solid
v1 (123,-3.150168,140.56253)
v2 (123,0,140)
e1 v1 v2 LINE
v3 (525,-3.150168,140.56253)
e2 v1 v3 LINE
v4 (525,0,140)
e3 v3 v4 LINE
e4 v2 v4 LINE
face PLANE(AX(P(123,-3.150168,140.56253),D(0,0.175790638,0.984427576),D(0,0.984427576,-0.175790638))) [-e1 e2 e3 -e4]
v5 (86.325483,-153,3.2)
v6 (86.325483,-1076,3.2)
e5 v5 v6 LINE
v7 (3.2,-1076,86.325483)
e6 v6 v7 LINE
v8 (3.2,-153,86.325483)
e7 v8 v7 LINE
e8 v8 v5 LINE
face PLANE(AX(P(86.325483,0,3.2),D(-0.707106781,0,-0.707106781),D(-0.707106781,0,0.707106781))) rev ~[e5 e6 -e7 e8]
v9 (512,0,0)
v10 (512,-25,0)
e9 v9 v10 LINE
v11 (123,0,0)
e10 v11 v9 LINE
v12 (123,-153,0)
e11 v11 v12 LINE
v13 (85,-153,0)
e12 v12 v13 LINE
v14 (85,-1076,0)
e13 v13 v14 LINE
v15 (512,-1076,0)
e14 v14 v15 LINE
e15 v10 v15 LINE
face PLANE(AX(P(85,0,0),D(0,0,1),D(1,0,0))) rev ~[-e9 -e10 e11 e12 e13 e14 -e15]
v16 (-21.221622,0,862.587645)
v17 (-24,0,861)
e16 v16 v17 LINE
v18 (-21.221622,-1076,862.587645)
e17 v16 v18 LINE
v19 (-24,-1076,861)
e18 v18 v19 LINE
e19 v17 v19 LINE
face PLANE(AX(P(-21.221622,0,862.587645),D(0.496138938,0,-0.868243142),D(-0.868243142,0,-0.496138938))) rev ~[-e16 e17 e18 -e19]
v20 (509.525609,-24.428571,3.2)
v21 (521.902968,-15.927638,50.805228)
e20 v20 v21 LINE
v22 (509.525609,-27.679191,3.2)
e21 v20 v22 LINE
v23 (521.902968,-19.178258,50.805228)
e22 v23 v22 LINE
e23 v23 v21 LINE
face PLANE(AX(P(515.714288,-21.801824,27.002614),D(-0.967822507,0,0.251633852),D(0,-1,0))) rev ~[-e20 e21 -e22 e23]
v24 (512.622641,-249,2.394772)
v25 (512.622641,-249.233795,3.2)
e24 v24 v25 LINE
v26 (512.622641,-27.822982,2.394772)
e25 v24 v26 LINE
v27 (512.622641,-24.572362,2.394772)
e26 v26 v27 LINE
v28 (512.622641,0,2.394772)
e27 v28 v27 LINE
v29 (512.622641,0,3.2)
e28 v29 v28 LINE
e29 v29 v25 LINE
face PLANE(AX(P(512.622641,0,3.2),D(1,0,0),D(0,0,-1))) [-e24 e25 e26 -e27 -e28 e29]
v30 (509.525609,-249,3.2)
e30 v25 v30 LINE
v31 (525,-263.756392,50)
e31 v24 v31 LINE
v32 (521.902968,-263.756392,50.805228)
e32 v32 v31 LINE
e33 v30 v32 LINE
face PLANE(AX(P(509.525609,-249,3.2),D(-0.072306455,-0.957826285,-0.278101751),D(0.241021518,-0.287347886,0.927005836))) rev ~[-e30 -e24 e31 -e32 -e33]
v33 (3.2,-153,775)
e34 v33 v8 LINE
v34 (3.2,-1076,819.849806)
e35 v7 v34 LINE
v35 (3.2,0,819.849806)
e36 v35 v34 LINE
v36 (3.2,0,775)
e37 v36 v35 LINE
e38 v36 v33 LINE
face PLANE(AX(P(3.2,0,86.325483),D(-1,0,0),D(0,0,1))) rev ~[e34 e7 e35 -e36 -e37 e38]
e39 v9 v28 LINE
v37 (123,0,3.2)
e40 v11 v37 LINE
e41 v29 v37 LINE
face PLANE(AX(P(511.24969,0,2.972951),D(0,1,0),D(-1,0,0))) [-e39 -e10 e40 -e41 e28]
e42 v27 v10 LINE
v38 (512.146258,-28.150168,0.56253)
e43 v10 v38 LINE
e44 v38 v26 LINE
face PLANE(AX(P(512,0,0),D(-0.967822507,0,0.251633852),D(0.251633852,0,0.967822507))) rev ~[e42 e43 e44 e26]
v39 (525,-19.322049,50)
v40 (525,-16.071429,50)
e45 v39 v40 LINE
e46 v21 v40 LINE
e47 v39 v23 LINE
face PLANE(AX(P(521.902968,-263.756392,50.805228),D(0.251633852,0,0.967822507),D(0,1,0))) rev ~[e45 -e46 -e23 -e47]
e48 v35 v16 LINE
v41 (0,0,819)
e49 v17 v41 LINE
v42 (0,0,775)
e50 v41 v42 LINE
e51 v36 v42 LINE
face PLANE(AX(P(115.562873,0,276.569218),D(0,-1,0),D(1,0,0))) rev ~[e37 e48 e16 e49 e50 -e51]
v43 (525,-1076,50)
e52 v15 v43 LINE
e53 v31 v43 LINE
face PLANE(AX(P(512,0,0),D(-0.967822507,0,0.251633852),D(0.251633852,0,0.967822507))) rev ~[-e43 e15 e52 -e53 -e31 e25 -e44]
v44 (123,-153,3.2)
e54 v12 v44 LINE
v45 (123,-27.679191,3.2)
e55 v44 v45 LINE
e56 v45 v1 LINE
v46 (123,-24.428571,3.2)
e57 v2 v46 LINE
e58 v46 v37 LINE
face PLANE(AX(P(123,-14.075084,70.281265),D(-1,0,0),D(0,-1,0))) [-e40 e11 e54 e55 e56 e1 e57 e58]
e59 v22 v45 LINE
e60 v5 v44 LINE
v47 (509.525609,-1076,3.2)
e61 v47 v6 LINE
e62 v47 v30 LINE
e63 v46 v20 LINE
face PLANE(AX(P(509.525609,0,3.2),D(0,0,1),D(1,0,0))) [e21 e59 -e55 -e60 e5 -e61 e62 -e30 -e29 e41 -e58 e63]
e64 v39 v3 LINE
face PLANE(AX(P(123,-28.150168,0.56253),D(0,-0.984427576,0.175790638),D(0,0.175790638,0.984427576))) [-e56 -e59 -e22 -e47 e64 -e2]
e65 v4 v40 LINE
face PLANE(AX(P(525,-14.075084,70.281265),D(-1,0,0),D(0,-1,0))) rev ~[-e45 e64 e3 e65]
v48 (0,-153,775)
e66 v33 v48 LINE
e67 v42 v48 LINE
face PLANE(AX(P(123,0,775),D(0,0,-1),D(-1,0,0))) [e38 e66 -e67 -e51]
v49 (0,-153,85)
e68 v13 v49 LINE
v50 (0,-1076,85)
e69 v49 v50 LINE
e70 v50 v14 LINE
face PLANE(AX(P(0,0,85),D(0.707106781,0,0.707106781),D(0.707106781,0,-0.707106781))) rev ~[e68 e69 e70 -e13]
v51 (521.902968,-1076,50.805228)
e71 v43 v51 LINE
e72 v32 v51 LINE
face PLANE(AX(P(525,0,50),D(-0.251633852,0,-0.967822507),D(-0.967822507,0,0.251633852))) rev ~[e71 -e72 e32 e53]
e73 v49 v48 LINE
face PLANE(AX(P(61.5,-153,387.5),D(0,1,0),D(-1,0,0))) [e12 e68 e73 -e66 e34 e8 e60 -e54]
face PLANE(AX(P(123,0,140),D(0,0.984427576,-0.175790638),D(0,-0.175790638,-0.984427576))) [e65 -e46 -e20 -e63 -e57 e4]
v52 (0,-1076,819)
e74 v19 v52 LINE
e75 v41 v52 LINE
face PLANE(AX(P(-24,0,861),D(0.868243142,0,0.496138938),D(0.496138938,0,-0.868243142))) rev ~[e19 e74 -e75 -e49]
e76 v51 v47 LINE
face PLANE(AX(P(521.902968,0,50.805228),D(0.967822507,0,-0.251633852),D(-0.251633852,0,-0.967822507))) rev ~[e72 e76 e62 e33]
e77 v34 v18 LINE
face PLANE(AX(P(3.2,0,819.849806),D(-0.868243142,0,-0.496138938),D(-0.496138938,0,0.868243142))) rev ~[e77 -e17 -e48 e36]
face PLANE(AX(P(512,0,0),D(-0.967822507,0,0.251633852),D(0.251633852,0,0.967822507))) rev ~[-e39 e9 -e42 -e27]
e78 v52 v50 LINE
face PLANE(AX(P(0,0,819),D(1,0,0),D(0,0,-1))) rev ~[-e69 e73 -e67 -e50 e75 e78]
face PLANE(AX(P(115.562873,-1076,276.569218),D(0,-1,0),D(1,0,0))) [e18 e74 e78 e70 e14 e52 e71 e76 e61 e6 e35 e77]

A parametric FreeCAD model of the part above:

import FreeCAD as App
import Part
import Sketcher
Q = App.Units.Quantity


def add_polygon(sketch, points):
    """Adds a closed chain of lines whose ends are joined by coincident constraints."""
    first, n = sketch.GeometryCount, len(points)
    for a, b in zip(points, points[1:] + points[:1]):
        sketch.addGeometry(Part.LineSegment(App.Vector(*a, 0), App.Vector(*b, 0)), False)
    for i in range(n):
        sketch.addConstraint(Sketcher.Constraint("Coincident", first + i, 2, first + (i + 1) % n, 1))

doc = App.newDocument("Part")
params = doc.addObject("Spreadsheet::Sheet", "Params")
for row, (alias, value) in enumerate([
    ("sketch1_width", "427 mm"),
    ("sketch1_height", "734 mm"),
    ("sketch1_length", "3.2 mm"),
    ("pad1_length", "1076 mm"),
    ("sketch2_width", "123 mm"),
    ("sketch2_height", "775 mm"),
    ("pocket1_length", "153 mm"),
    ("sketch3_length", "3.2 mm"),
    ("pad2_length", "402 mm"),
    ("sketch4_width", "249 mm"),
    ("pocket2_length", "25 mm"),
    ("pocket3_length", "50 mm"),
    ("sketch6_length", "3.2 mm"),
    ("pad3_length", "260 mm"),
], start=1):
    params.set(f"A{row}", alias)
    params.set(f"B{row}", "=" + value)
    params.setAlias(f"B{row}", alias)

body = doc.addObject("PartDesign::Body", "Body")

sketch1 = body.newObject("Sketcher::SketchObject", "Sketch")
sketch1.AttachmentSupport = (doc.getObject("XZ_Plane"), [""])
sketch1.MapMode = "FlatFace"
add_polygon(sketch1, [(0, 819), (0, 85), (85, 0), (512, 0), (525, 50), (521.902968, 50.805228), (509.525609, 3.2), (86.325483, 3.2), (3.2, 86.325483), (3.2, 819.849806), (-21.221622, 862.587645), (-24, 861)])
sketch1.addConstraint([
    Sketcher.Constraint("Vertical", 0),
    Sketcher.Constraint("Horizontal", 2),
    Sketcher.Constraint("Horizontal", 6),
    Sketcher.Constraint("Vertical", 8),
    Sketcher.Constraint("PointOnObject", 0, 2, -2),
    Sketcher.Constraint("PointOnObject", 1, 2, -1),
    Sketcher.Constraint("Perpendicular", 3, 4),
    Sketcher.Constraint("Perpendicular", 4, 5),
    Sketcher.Constraint("Parallel", 1, 7),
    Sketcher.Constraint("Perpendicular", 9, 10),
    Sketcher.Constraint("Perpendicular", 10, 11),
    Sketcher.Constraint("Equal", 4, 10),
    Sketcher.Constraint("DistanceX", 2, 1, 2, 2, Q("427 mm")),
    Sketcher.Constraint("DistanceY", 0, 2, 0, 1, Q("734 mm")),
    Sketcher.Constraint("Angle", 1, Q("-45 deg")),
    Sketcher.Constraint("DistanceY", -1, 1, 0, 2, Q("85 mm")),
    Sketcher.Constraint("DistanceX", -1, 1, 3, 2, Q("525 mm")),
    Sketcher.Constraint("DistanceY", -1, 1, 3, 2, Q("50 mm")),
    Sketcher.Constraint("DistanceX", 10, 2, -1, 1, Q("24 mm")),
    Sketcher.Constraint("DistanceY", -1, 1, 10, 2, Q("861 mm")),
    Sketcher.Constraint("Distance", 4, Q("3.2 mm")),
    Sketcher.Constraint("DistanceY", -1, 1, 5, 2, Q("3.2 mm")),
    Sketcher.Constraint("DistanceX", -1, 1, 7, 2, Q("3.2 mm")),
    Sketcher.Constraint("DistanceX", 6, 2, 6, 1, Q("423.200125 mm")),
])
sketch1.setExpression("Constraints[24]", "Params.sketch1_width")
sketch1.setExpression("Constraints[25]", "Params.sketch1_height")
sketch1.setExpression("Constraints[32]", "Params.sketch1_length")
pad1 = body.newObject("PartDesign::Pad", "Pad")
pad1.Profile = sketch1
pad1.setExpression("Length", "Params.pad1_length")

sketch2 = body.newObject("Sketcher::SketchObject", "Sketch001")
sketch2.AttachmentSupport = (doc.getObject("XZ_Plane"), [""])
sketch2.MapMode = "FlatFace"
add_polygon(sketch2, [(123, 775), (123, 0), (0, 0), (0, 775)])
sketch2.addConstraint([
    Sketcher.Constraint("Vertical", 0),
    Sketcher.Constraint("Horizontal", 1),
    Sketcher.Constraint("Vertical", 2),
    Sketcher.Constraint("Horizontal", 3),
    Sketcher.Constraint("Coincident", 1, 2, -1, 1),
    Sketcher.Constraint("DistanceX", 1, 2, 1, 1, Q("123 mm")),
    Sketcher.Constraint("DistanceY", 0, 2, 0, 1, Q("775 mm")),
])
sketch2.setExpression("Constraints[9]", "Params.sketch2_width")
sketch2.setExpression("Constraints[10]", "Params.sketch2_height")
pocket1 = body.newObject("PartDesign::Pocket", "Pocket")
pocket1.Profile = sketch2
pocket1.setExpression("Length", "Params.pocket1_length")
pocket1.Reversed = True

sketch3 = body.newObject("Sketcher::SketchObject", "Sketch002")
sketch3.AttachmentSupport = (doc.getObject("YZ_Plane"), [""])
sketch3.MapMode = "FlatFace"
sketch3.AttachmentOffset = App.Placement(App.Vector(0, 0, 123), App.Rotation())
add_polygon(sketch3, [(0, 140), (-25, 0), (-28.150168, 0.56253), (-3.150168, 140.56253)])
sketch3.addConstraint([
    Sketcher.Constraint("PointOnObject", 0, 2, -1),
    Sketcher.Constraint("PointOnObject", 3, 2, -2),
    Sketcher.Constraint("Perpendicular", 0, 1),
    Sketcher.Constraint("Perpendicular", 1, 2),
    Sketcher.Constraint("Perpendicular", 2, 3),
    Sketcher.Constraint("DistanceX", 0, 2, -1, 1, Q("25 mm")),
    Sketcher.Constraint("DistanceY", -1, 1, 3, 2, Q("140 mm")),
    Sketcher.Constraint("Distance", 1, Q("3.2 mm")),
])
sketch3.setExpression("Constraints[11]", "Params.sketch3_length")
pad2 = body.newObject("PartDesign::Pad", "Pad001")
pad2.Profile = sketch3
pad2.setExpression("Length", "Params.pad2_length")

sketch4 = body.newObject("Sketcher::SketchObject", "Sketch003")
sketch4.Placement = App.Placement(App.Vector(476.483335, 0, -123.885667), App.Rotation(App.Vector(0, -1, 0), App.Vector(0.251633852, 0, 0.967822507), App.Vector(-0.967822507, 0, 0.251633852), "ZXY"))
add_polygon(sketch4, [(249, 131.310924), (263.756392, 180.498898), (0, 180.498898), (0, 131.310924)])
sketch4.addConstraint([
    Sketcher.Constraint("Horizontal", 1),
    Sketcher.Constraint("Vertical", 2),
    Sketcher.Constraint("Horizontal", 3),
    Sketcher.Constraint("PointOnObject", 1, 2, -2),
    Sketcher.Constraint("DistanceX", 3, 1, 3, 2, Q("249 mm")),
    Sketcher.Constraint("DistanceX", 1, 2, 1, 1, Q("263.756392 mm")),
    Sketcher.Constraint("DistanceY", 2, 2, 2, 1, Q("49.187974 mm")),
    Sketcher.Constraint("DistanceY", -1, 1, 0, 2, Q("180.498898 mm")),
])
sketch4.setExpression("Constraints[8]", "Params.sketch4_width")
pocket2 = body.newObject("PartDesign::Pocket", "Pocket001")
pocket2.Profile = sketch4
pocket2.setExpression("Length", "Params.pocket2_length")

sketch5 = body.newObject("Sketcher::SketchObject", "Sketch004")
sketch5.AttachmentSupport = (doc.getObject("XZ_Plane"), [""])
sketch5.MapMode = "FlatFace"
add_polygon(sketch5, [(525.584936, 0), (512, 0), (513.426898, 5.488069)])
sketch5.addConstraint([
    Sketcher.Constraint("Horizontal", 0),
    Sketcher.Constraint("PointOnObject", 0, 2, -1),
    Sketcher.Constraint("DistanceX", -1, 1, 0, 2, Q("512 mm")),
    Sketcher.Constraint("DistanceX", -1, 1, 1, 2, Q("513.426898 mm")),
    Sketcher.Constraint("DistanceX", 0, 2, 0, 1, Q("13.584936 mm")),
    Sketcher.Constraint("DistanceY", -1, 1, 1, 2, Q("5.488069 mm")),
])
pocket3 = body.newObject("PartDesign::Pocket", "Pocket002")
pocket3.Profile = sketch5
pocket3.setExpression("Length", "Params.pocket3_length")
pocket3.Reversed = True

sketch6 = body.newObject("Sketcher::SketchObject", "Sketch005")
sketch6.AttachmentSupport = (doc.getObject("XZ_Plane"), [""])
sketch6.MapMode = "FlatFace"
add_polygon(sketch6, [(512.622641, 2.394772), (509.525609, 3.2), (512.622641, 3.2)])
sketch6.addConstraint([
    Sketcher.Constraint("Horizontal", 1),
    Sketcher.Constraint("Vertical", 2),
    Sketcher.Constraint("Distance", 0, Q("3.2 mm")),
    Sketcher.Constraint("DistanceY", -1, 1, 0, 2, Q("3.2 mm")),
    Sketcher.Constraint("DistanceY", 2, 2, 2, 1, Q("0.805228 mm")),
    Sketcher.Constraint("DistanceX", -1, 1, 0, 2, Q("509.525609 mm")),
])
sketch6.setExpression("Constraints[5]", "Params.sketch6_length")
pad3 = body.newObject("PartDesign::Pad", "Pad002")
pad3.Profile = sketch6
pad3.setExpression("Length", "Params.pad3_length")

doc.recompute()
